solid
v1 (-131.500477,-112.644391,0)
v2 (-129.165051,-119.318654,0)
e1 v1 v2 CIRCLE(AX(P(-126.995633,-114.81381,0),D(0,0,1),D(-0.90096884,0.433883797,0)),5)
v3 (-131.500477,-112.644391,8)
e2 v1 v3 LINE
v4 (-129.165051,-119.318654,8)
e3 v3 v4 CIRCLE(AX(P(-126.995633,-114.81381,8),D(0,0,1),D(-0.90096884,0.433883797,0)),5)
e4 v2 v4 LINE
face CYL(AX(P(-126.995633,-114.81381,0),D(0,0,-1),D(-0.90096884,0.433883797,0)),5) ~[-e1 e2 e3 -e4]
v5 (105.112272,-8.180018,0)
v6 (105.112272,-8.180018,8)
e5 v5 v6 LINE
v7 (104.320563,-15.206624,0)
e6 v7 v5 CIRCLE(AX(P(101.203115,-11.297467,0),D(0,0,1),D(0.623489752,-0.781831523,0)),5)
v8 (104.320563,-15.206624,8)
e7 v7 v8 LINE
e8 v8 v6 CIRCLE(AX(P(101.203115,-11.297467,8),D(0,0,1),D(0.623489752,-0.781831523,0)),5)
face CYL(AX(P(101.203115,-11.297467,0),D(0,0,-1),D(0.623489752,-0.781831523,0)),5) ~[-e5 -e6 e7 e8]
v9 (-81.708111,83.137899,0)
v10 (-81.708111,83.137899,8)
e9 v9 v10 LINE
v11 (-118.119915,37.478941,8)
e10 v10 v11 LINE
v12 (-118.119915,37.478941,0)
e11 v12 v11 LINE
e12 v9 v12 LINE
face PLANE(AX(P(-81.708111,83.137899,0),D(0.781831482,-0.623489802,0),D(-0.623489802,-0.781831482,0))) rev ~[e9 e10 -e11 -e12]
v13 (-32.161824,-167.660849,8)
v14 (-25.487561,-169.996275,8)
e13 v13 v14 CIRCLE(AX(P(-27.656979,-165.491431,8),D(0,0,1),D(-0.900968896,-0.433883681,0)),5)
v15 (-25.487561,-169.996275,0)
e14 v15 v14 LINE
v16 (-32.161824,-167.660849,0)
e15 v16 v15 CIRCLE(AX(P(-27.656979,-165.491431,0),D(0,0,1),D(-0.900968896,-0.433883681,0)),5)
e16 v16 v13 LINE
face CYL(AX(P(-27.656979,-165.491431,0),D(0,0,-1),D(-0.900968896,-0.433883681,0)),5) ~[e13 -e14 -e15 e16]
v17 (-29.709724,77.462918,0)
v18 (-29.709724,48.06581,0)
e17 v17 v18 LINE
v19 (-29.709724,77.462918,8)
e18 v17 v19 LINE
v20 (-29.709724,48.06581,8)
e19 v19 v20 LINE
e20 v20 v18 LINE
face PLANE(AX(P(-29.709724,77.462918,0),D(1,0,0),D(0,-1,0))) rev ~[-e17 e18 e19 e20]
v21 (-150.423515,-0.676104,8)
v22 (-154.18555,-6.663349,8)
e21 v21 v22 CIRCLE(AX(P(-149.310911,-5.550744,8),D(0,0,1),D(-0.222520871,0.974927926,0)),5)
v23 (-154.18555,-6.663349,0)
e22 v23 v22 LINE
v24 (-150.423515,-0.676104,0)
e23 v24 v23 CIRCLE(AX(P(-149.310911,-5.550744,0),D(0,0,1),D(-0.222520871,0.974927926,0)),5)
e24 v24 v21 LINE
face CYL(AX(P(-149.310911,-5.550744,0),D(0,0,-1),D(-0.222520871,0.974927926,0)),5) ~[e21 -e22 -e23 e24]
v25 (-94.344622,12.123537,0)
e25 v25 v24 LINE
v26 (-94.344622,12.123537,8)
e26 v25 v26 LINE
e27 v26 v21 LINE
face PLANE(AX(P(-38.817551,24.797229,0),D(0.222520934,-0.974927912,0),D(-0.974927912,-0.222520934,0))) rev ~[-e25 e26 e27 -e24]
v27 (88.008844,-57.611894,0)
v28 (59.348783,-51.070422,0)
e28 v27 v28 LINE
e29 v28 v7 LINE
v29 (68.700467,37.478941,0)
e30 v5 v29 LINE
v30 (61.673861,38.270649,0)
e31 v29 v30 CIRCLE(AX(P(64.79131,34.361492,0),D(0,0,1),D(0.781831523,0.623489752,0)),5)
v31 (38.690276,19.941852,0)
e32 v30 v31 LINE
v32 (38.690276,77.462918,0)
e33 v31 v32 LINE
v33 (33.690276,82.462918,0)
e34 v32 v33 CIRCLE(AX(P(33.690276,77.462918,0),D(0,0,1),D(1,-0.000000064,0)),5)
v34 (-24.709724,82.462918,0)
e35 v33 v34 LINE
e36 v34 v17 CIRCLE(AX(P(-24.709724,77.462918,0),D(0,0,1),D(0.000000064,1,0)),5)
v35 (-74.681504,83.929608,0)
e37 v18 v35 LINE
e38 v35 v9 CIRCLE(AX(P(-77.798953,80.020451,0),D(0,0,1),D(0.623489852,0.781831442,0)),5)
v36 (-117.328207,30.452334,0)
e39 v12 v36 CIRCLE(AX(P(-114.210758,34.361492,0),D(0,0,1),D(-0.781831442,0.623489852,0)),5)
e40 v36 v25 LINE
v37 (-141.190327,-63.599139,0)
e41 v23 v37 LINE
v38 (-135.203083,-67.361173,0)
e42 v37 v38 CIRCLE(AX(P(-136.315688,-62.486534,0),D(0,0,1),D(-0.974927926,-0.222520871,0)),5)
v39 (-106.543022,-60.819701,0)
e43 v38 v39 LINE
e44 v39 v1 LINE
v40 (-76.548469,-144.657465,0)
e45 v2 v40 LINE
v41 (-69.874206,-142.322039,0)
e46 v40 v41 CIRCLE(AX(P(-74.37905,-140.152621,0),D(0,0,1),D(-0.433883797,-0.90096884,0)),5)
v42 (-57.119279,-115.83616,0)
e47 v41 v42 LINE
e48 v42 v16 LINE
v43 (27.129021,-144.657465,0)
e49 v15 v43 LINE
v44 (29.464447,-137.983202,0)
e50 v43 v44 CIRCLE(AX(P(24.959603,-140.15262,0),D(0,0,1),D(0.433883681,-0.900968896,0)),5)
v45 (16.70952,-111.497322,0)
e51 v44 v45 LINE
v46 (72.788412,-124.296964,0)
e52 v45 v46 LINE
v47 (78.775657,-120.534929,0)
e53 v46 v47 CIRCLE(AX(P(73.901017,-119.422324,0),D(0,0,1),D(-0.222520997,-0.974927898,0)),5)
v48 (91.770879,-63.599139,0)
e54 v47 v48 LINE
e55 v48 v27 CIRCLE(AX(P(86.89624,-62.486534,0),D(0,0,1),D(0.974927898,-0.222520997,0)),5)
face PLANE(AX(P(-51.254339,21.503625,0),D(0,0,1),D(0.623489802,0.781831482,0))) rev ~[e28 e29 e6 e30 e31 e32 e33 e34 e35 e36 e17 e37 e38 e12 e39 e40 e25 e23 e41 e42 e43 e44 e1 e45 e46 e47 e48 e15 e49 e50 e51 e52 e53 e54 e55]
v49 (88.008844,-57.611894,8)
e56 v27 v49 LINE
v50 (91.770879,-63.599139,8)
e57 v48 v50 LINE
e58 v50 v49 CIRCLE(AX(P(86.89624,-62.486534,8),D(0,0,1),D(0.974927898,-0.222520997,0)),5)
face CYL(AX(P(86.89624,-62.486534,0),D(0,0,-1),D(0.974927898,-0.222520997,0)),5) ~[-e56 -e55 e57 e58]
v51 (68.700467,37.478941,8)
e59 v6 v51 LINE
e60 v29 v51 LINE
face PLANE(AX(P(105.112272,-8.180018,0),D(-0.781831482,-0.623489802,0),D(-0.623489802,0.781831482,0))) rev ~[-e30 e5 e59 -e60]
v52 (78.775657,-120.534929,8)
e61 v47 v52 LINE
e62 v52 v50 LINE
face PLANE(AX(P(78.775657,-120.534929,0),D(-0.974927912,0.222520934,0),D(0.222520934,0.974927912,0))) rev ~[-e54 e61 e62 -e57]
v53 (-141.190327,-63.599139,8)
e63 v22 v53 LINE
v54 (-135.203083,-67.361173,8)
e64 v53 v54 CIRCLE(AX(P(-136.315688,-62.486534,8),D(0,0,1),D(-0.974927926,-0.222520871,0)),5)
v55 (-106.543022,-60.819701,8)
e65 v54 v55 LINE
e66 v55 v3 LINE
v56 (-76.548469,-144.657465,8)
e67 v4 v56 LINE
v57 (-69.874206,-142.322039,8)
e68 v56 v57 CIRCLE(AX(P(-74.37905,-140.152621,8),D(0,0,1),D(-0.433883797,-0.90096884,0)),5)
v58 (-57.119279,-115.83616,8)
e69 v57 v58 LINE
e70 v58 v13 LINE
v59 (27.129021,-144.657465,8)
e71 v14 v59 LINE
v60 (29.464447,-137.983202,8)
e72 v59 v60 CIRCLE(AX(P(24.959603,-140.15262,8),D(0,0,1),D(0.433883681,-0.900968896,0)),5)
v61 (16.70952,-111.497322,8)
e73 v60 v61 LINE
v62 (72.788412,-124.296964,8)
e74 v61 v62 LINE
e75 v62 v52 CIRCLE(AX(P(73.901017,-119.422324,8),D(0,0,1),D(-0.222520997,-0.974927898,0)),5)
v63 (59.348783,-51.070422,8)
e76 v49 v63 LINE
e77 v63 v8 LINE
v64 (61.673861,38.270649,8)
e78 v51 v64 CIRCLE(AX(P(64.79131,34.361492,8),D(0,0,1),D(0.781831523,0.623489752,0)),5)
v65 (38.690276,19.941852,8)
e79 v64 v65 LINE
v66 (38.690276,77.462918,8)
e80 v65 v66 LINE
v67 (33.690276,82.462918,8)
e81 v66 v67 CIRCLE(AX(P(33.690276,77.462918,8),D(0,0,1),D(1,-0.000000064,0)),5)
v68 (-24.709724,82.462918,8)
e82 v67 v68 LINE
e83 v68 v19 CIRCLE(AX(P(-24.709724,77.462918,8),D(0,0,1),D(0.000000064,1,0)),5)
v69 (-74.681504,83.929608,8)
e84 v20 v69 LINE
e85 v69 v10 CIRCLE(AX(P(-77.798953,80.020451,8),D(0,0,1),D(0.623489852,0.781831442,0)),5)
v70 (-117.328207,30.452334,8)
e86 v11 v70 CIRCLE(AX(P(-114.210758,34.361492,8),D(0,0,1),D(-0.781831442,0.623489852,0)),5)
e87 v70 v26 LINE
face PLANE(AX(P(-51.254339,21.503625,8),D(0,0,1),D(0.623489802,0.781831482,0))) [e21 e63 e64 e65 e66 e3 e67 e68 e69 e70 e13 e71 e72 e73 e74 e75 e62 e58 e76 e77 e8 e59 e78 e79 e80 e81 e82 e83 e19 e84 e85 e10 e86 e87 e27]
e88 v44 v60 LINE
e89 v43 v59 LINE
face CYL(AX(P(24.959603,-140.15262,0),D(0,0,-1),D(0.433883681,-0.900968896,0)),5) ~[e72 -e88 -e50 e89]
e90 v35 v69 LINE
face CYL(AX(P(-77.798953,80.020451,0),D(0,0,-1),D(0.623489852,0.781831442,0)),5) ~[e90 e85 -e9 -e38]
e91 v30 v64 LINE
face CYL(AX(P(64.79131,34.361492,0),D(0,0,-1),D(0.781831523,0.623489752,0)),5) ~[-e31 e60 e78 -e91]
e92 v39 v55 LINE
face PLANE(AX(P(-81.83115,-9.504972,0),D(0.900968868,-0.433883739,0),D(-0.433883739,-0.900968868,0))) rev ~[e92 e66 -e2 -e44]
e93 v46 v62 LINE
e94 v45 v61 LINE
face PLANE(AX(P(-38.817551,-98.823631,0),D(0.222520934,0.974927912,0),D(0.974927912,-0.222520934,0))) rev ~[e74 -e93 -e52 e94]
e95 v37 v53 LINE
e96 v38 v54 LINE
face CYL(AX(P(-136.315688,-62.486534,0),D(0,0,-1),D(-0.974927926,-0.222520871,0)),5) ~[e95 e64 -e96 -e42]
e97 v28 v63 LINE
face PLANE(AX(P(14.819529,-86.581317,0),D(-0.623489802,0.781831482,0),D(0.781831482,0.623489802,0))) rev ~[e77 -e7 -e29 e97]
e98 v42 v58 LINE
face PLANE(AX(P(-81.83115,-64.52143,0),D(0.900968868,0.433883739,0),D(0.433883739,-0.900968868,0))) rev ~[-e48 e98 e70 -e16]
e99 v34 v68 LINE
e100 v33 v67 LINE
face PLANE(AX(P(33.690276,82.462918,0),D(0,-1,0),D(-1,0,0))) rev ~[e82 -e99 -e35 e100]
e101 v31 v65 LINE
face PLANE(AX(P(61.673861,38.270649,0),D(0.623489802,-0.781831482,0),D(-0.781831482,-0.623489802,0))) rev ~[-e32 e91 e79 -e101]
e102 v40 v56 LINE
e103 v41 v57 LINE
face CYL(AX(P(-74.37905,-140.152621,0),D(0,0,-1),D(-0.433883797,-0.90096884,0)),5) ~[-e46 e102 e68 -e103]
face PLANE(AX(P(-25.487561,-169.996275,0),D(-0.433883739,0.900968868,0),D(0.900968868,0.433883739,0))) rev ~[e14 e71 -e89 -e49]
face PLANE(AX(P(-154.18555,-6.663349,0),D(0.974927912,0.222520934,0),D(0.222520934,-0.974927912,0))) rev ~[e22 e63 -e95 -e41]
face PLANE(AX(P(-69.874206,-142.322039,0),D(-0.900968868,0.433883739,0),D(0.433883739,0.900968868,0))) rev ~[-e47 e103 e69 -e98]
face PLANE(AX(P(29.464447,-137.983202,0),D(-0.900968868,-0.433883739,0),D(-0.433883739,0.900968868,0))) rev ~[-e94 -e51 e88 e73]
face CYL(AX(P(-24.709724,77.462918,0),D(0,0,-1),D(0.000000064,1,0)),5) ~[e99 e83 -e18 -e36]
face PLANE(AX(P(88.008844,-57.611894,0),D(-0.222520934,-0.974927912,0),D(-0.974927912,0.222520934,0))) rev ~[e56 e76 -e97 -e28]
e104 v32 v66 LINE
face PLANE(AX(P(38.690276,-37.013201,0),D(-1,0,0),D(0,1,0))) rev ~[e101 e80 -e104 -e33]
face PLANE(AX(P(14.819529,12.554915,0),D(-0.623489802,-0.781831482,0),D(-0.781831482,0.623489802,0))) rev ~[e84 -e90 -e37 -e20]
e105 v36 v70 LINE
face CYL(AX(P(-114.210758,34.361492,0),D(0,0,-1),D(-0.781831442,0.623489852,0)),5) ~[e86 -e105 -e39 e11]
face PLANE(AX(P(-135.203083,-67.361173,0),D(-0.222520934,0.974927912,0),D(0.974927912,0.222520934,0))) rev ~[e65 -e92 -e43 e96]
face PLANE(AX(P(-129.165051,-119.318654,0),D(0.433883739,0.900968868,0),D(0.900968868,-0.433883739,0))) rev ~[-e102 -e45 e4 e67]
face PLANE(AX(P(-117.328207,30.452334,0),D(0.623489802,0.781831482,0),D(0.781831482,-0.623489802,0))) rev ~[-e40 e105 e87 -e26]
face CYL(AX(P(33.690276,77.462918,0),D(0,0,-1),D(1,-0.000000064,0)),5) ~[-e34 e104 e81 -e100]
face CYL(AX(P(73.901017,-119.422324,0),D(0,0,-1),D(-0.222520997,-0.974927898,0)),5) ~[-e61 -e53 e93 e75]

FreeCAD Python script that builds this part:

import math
import FreeCAD as App
import Part
import Sketcher
Q = App.Units.Quantity

doc = App.newDocument("Part")
params = doc.addObject("Spreadsheet::Sheet", "Params")
for row, (alias, value) in enumerate([
    ("sketch1_radius", "5 mm"),
    ("sketch1_width", "58.4 mm"),
    ("pad1_length", "8 mm"),
], start=1):
    params.set(f"A{row}", alias)
    params.set(f"B{row}", "=" + value)
    params.setAlias(f"B{row}", alias)

body = doc.addObject("PartDesign::Body", "Body")

# Sketch on XY plane
sketch1 = body.newObject("Sketcher::SketchObject", "Sketch")
sketch1.AttachmentSupport = (doc.getObject("XY_Plane"), [""])
sketch1.MapMode = "FlatFace"
sketch1.addGeometry([
    Part.LineSegment(App.Vector(33.690276, 82.462918, 0), App.Vector(-24.709724, 82.462918, 0)),  # 0
    Part.ArcOfCircle(Part.Circle(App.Vector(-24.709724, 77.462918, 0), App.Vector(0, 0, 1), 5), math.radians(89.999996), math.radians(180.000004)),  # 1
    Part.LineSegment(App.Vector(-29.709724, 77.462918, 0), App.Vector(-29.709724, -37.013201, 0)),  # 2
    Part.ArcOfCircle(Part.Circle(App.Vector(-24.709724, -37.013201, 0), App.Vector(0, 0, 1), 5), math.radians(179.999996), math.radians(270.000004)),  # 3
    Part.LineSegment(App.Vector(-24.709724, -42.013201, 0), App.Vector(33.690276, -42.013201, 0)),  # 4
    Part.ArcOfCircle(Part.Circle(App.Vector(33.690276, -37.013201, 0), App.Vector(0, 0, 1), 5), math.radians(-90.000004), math.radians(0.000004)),  # 5
    Part.LineSegment(App.Vector(38.690276, -37.013201, 0), App.Vector(38.690276, 77.462918, 0)),  # 6
    Part.ArcOfCircle(Part.Circle(App.Vector(33.690276, 77.462918, 0), App.Vector(0, 0, 1), 5), math.radians(-0.000004), math.radians(90.000004)),  # 7
], False)
sketch1.addConstraint([
    Sketcher.Constraint("Tangent", 0, 2, 1, 1),
    Sketcher.Constraint("Tangent", 1, 2, 2, 1),
    Sketcher.Constraint("Tangent", 2, 2, 3, 1),
    Sketcher.Constraint("Tangent", 3, 2, 4, 1),
    Sketcher.Constraint("Tangent", 4, 2, 5, 1),
    Sketcher.Constraint("Tangent", 5, 2, 6, 1),
    Sketcher.Constraint("Tangent", 6, 2, 7, 1),
    Sketcher.Constraint("Tangent", 7, 2, 0, 1),
    Sketcher.Constraint("Horizontal", 0),
    Sketcher.Constraint("Vertical", 2),
    Sketcher.Constraint("Horizontal", 4),
    Sketcher.Constraint("Vertical", 6),
    Sketcher.Constraint("Equal", 1, 3),
    Sketcher.Constraint("Equal", 3, 5),
    Sketcher.Constraint("Equal", 5, 7),
    Sketcher.Constraint("Radius", 1, Q("5 mm")),
    Sketcher.Constraint("DistanceX", 0, 2, 0, 1, Q("58.4 mm")),
    Sketcher.Constraint("DistanceY", 2, 2, 2, 1, Q("114.476119 mm")),
    Sketcher.Constraint("DistanceY", 3, 3, -1, 1, Q("37.013201 mm")),
    Sketcher.Constraint("DistanceX", 1, 3, -1, 1, Q("24.709724 mm")),
])
sketch1.setExpression("Constraints[15]", "Params.sketch1_radius")
sketch1.setExpression("Constraints[16]", "Params.sketch1_width")
pad1 = body.newObject("PartDesign::Pad", "Pad")
pad1.Profile = sketch1
pad1.setExpression("Length", "Params.pad1_length")
body2 = doc.addObject("PartDesign::Body", "Body001")
doc.recompute()

body2.BaseFeature = body
doc.recompute()

body3 = doc.addObject("PartDesign::Body", "Body002")
body3.BaseFeature = body
body3.Placement = App.Placement(App.Vector(19.634623, -33.254688, 0), App.Rotation(App.Vector(0, 0, -1), 51.428571))
boolean = body2.newObject("PartDesign::Boolean", "Boolean")
boolean.Type = "Fuse"
boolean.addObjects([body3])
doc.recompute()

body4 = doc.addObject("PartDesign::Body", "Body003")
body4.BaseFeature = body
body4.Placement = App.Placement(App.Vector(5.877048, -69.339613, 0), App.Rotation(App.Vector(0, 0, -1), 102.857143))
boolean2 = body2.newObject("PartDesign::Boolean", "Boolean001")
boolean2.Type = "Fuse"
boolean2.addObjects([body4])
doc.recompute()

body5 = doc.addObject("PartDesign::Body", "Body004")
body5.BaseFeature = body
body5.Placement = App.Placement(App.Vector(-30.91299, -81.08209, 0), App.Rotation(App.Vector(0, 0, -1), 154.285714))
boolean3 = body2.newObject("PartDesign::Boolean", "Boolean002")
boolean3.Type = "Fuse"
boolean3.addObjects([body5])
doc.recompute()

body6 = doc.addObject("PartDesign::Body", "Body005")
body6.BaseFeature = body
body6.Placement = App.Placement(App.Vector(-63.031842, -59.639795, 0), App.Rotation(App.Vector(0, 0, -1), 205.714286))
boolean4 = body2.newObject("PartDesign::Boolean", "Boolean003")
boolean4.Type = "Fuse"
boolean4.addObjects([body6])
doc.recompute()

body7 = doc.addObject("PartDesign::Body", "Body006")
body7.BaseFeature = body
body7.Placement = App.Placement(App.Vector(-66.293358, -21.159213, 0), App.Rotation(App.Vector(0, 0, -1), 257.142857))
boolean5 = body2.newObject("PartDesign::Boolean", "Boolean004")
boolean5.Type = "Fuse"
boolean5.addObjects([body7])
doc.recompute()

body.Placement = App.Placement(App.Vector(-38.241549, 5.382993, 0), App.Rotation(App.Vector(0, 0, -1), 308.571429))
boolean6 = body2.newObject("PartDesign::Boolean", "Boolean005")
boolean6.Type = "Fuse"
boolean6.addObjects([body])

doc.recompute()
